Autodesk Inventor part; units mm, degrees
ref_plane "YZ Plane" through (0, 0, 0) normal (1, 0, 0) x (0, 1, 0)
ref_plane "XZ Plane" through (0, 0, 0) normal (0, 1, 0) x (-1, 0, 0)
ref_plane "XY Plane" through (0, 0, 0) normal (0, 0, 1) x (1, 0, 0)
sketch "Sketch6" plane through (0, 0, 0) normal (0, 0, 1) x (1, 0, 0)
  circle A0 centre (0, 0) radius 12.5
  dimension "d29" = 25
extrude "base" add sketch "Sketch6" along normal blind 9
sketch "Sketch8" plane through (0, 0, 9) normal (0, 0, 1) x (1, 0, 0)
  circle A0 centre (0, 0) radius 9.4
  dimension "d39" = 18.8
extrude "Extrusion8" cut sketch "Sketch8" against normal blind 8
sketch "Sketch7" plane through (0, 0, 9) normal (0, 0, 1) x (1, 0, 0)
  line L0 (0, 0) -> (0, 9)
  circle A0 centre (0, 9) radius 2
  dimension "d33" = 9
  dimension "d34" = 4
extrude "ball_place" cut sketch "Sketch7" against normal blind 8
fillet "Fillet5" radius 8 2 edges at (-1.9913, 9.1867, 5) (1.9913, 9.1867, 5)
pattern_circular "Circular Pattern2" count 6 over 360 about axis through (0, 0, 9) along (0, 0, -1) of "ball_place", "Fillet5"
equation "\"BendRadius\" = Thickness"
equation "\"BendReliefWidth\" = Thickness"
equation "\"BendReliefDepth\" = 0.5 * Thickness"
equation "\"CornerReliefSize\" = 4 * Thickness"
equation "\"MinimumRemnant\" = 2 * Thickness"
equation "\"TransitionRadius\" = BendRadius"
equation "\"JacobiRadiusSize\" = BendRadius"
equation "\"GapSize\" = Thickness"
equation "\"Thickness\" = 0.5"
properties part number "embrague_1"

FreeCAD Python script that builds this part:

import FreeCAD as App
import Part
import Sketcher
Q = App.Units.Quantity


def edges_at(feature, points):
    """Names of the edges that pass closest to the given points."""
    edges = feature.Shape.Edges
    near = lambda p: min(range(len(edges)), key=lambda i: edges[i].distToShape(Part.Vertex(*p))[0])
    return sorted({f"Edge{near(p) + 1}" for p in points})

doc = App.newDocument("Part")
body = doc.addObject("PartDesign::Body", "Body")

# Sketch on XY plane
sketch1 = doc.addObject("Sketcher::SketchObject", "Sketch")
body.addObject(sketch1)
sketch1.AttachmentSupport = (doc.XY_Plane, [""])
sketch1.MapMode = "FlatFace"
sketch1.addGeometry(Part.Circle(App.Vector(0, 0, 0), App.Vector(0, 0, 1), 12), False)
sketch1.addConstraint(Sketcher.Constraint("Coincident", 0, 3, -1, 1))
sketch1.addConstraint(Sketcher.Constraint("Diameter", 0, Q("25 mm")))
pad1 = doc.addObject("PartDesign::Pad", "Pad")
body.addObject(pad1)
pad1.Profile = sketch1
pad1.Length = 9

# Sketch on XY plane
sketch2 = doc.addObject("Sketcher::SketchObject", "Sketch001")
body.addObject(sketch2)
sketch2.AttachmentSupport = (doc.XY_Plane, [""])
sketch2.MapMode = "FlatFace"
sketch2.AttachmentOffset = App.Placement(App.Vector(0, 0, 9), App.Rotation())
sketch2.addGeometry(Part.Circle(App.Vector(0, 0, 0), App.Vector(0, 0, 1), 9), False)
sketch2.addConstraint(Sketcher.Constraint("Coincident", 0, 3, -1, 1))
sketch2.addConstraint(Sketcher.Constraint("Diameter", 0, Q("18.8 mm")))
pocket1 = doc.addObject("PartDesign::Pocket", "Pocket")
body.addObject(pocket1)
pocket1.Profile = sketch2
pocket1.Length = 8

# Sketch on XY plane
sketch3 = doc.addObject("Sketcher::SketchObject", "Sketch002")
body.addObject(sketch3)
sketch3.AttachmentSupport = (doc.XY_Plane, [""])
sketch3.MapMode = "FlatFace"
sketch3.AttachmentOffset = App.Placement(App.Vector(0, 0, 9), App.Rotation())
sketch3.addGeometry(Part.Circle(App.Vector(0, 9, 0), App.Vector(0, 0, 1), 2), False)
sketch3.addConstraint(Sketcher.Constraint("PointOnObject", 0, 3, -2))
sketch3.addConstraint(Sketcher.Constraint("Diameter", 0, Q("4 mm")))
sketch3.addConstraint(Sketcher.Constraint("DistanceY", -1, 1, 0, 3, Q("9 mm")))
pocket2 = doc.addObject("PartDesign::Pocket", "Pocket001")
body.addObject(pocket2)
pocket2.Profile = sketch3
pocket2.Length = 8
doc.recompute()

fillet = doc.addObject("PartDesign::Fillet", "Fillet")
body.addObject(fillet)
fillet.Base = (pocket2, edges_at(pocket2, [(-1.991, 9.187, 5), (1.991, 9.187, 5)]))
fillet.Radius = 8
doc.recompute()

polarpattern = doc.addObject("PartDesign::PolarPattern", "PolarPattern")
body.addObject(polarpattern)
polarpattern.Originals = [pocket2, fillet]
polarpattern.Axis = (doc.Z_Axis, [""])
polarpattern.Angle = 360
polarpattern.Occurrences = 6
body.Tip = polarpattern

doc.recompute()
